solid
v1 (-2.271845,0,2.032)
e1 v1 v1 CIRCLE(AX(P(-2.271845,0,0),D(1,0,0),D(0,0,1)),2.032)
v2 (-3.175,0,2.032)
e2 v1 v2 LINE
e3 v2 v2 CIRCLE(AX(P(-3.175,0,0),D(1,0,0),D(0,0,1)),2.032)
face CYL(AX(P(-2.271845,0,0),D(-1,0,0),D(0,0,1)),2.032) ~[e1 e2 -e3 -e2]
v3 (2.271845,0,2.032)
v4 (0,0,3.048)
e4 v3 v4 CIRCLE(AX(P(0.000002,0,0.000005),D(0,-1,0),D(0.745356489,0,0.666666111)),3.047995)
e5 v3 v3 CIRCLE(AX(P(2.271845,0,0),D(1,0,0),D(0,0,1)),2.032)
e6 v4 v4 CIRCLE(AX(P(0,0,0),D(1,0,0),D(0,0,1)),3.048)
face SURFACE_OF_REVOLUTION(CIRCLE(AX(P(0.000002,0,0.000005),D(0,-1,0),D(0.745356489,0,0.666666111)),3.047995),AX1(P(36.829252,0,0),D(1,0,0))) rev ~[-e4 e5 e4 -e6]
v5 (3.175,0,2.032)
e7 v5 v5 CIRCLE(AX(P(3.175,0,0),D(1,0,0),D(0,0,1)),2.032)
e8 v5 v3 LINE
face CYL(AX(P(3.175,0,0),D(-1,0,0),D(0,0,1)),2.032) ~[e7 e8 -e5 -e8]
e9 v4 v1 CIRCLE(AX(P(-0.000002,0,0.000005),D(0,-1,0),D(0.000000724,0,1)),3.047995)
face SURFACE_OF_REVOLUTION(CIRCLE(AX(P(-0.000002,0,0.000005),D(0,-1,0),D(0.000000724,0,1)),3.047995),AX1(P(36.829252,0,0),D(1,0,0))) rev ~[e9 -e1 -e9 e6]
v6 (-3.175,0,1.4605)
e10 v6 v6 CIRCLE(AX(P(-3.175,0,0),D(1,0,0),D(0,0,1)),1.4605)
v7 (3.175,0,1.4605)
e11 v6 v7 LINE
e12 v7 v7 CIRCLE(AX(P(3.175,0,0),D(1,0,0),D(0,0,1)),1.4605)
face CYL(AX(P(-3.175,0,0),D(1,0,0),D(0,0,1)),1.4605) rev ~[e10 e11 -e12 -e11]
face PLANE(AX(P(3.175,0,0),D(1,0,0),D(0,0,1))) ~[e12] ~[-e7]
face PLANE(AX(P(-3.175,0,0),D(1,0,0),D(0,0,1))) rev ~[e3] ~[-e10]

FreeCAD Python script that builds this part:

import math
import FreeCAD as App
import Part
import Sketcher

V = App.Vector
Q = App.Units.Quantity

doc = App.newDocument("Part")
body = doc.addObject("PartDesign::Body", "Body")

sketch1 = body.newObject("Sketcher::SketchObject", "Sketch")
sketch1.AttachmentSupport = (doc.getObject("XZ_Plane"), [""])
sketch1.MapMode = "FlatFace"
sketch1.addGeometry(Part.LineSegment(V(3.175, 2.032, 0), V(2.271845, 2.032, 0)), False)
sketch1.addGeometry(Part.ArcOfCircle(Part.Circle(V(0.000002, 0.000005, 0), V(0, 0, 1), 3.047995), math.radians(41.810272), math.radians(90.000041)), False)
sketch1.addGeometry(Part.ArcOfCircle(Part.Circle(V(-0.000002, 0.000005, 0), V(0, 0, 1), 3.047995), math.radians(89.999959), math.radians(138.189728)), False)
sketch1.addGeometry(Part.LineSegment(V(-2.271845, 2.032, 0), V(-3.175, 2.032, 0)), False)
sketch1.addGeometry(Part.LineSegment(V(-3.175, 2.032, 0), V(-3.175, 1.4605, 0)), False)
sketch1.addGeometry(Part.LineSegment(V(-3.175, 1.4605, 0), V(3.175, 1.4605, 0)), False)
sketch1.addGeometry(Part.LineSegment(V(3.175, 1.4605, 0), V(3.175, 2.032, 0)), False)
sketch1.addConstraint(Sketcher.Constraint("Coincident", 0, 2, 1, 1))
sketch1.addConstraint(Sketcher.Constraint("Tangent", 1, 2, 2, 1))
sketch1.addConstraint(Sketcher.Constraint("Coincident", 2, 2, 3, 1))
sketch1.addConstraint(Sketcher.Constraint("Coincident", 3, 2, 4, 1))
sketch1.addConstraint(Sketcher.Constraint("Coincident", 4, 2, 5, 1))
sketch1.addConstraint(Sketcher.Constraint("Coincident", 5, 2, 6, 1))
sketch1.addConstraint(Sketcher.Constraint("Coincident", 6, 2, 0, 1))
sketch1.addConstraint(Sketcher.Constraint("Horizontal", 0))
sketch1.addConstraint(Sketcher.Constraint("Horizontal", 3))
sketch1.addConstraint(Sketcher.Constraint("Vertical", 4))
sketch1.addConstraint(Sketcher.Constraint("Horizontal", 5))
sketch1.addConstraint(Sketcher.Constraint("Vertical", 6))
sketch1.addConstraint(Sketcher.Constraint("Coincident", 1, 3, -1, 1))
sketch1.addConstraint(Sketcher.Constraint("Equal", 1, 2))
sketch1.addConstraint(Sketcher.Constraint("Symmetric", 3, 2, 6, 2, -2))
sketch1.addConstraint(Sketcher.Constraint("PointOnObject", 1, 2, -2))
sketch1.addConstraint(Sketcher.Constraint("DistanceX", 5, 1, 5, 2, Q("0.25 in")))
sketch1.addConstraint(Sketcher.Constraint("DistanceY", -1, 1, 0, 2, Q("0.08 in")))
sketch1.addConstraint(Sketcher.Constraint("DistanceY", -1, 1, 1, 2, Q("0.12 in")))
sketch1.addConstraint(Sketcher.Constraint("DistanceY", 4, 2, 4, 1, Q("0.0225 in")))
revolution = body.newObject("PartDesign::Revolution", "Revolution")
revolution.Profile = sketch1
revolution.ReferenceAxis = (sketch1, ["H_Axis"])
revolution.Angle = 360

doc.recompute()
